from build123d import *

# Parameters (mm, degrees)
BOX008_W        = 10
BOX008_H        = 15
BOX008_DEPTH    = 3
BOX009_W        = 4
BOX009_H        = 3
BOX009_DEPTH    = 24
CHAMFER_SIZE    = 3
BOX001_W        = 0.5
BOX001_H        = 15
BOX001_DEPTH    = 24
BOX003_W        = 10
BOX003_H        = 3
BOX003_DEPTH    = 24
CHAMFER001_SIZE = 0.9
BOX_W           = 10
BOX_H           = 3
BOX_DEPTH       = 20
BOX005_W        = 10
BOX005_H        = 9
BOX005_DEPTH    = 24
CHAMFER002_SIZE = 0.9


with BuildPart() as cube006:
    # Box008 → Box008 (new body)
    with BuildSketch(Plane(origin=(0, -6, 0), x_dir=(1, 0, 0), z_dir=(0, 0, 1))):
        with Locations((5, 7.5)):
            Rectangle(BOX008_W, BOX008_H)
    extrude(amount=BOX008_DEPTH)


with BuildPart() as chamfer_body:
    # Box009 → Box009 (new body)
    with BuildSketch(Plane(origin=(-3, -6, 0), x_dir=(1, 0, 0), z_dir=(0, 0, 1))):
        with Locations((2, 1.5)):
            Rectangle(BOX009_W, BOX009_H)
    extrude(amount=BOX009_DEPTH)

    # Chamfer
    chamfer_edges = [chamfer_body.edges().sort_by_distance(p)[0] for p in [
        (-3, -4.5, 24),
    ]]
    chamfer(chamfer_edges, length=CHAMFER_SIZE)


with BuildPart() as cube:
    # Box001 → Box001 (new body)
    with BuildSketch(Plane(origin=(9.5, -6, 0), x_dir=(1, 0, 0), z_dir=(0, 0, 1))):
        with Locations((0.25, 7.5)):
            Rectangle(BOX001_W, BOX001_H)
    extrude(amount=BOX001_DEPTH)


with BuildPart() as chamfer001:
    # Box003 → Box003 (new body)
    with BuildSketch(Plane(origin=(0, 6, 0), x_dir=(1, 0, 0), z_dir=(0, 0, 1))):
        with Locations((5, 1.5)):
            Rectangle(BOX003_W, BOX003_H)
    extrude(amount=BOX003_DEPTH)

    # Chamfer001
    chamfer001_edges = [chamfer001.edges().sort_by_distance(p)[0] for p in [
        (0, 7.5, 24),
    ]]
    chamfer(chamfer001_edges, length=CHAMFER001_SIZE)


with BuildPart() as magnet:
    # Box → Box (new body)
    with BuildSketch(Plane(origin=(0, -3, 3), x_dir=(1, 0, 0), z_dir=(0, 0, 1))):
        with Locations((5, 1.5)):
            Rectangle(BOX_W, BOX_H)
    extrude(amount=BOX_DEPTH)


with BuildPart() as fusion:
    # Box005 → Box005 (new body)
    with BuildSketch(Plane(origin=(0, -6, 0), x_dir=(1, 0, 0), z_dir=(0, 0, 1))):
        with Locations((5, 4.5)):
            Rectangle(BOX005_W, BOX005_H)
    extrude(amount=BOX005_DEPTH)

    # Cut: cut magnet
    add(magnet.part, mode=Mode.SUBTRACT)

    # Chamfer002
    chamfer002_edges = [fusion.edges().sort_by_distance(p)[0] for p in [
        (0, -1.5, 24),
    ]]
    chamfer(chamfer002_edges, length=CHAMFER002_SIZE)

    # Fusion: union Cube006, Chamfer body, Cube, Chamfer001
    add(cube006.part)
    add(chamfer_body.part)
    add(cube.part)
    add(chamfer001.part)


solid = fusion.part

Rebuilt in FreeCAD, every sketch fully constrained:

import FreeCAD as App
import Part
import Sketcher
from FreeCAD import Vector
Q = App.Units.Quantity


def edges_at(feature, points):
    """Names of the edges that pass closest to the given points."""
    edges = feature.Shape.Edges
    near = lambda p: min(range(len(edges)), key=lambda i: edges[i].distToShape(Part.Vertex(*p))[0])
    return sorted({f"Edge{near(p) + 1}" for p in points})


def add_polygon(sketch, points):
    """Adds a closed chain of lines whose ends are joined by coincident constraints."""
    first, n = sketch.GeometryCount, len(points)
    for a, b in zip(points, points[1:] + points[:1]):
        sketch.addGeometry(Part.LineSegment(App.Vector(*a, 0), App.Vector(*b, 0)), False)
    for i in range(n):
        sketch.addConstraint(Sketcher.Constraint("Coincident", first + i, 2, first + (i + 1) % n, 1))

doc = App.newDocument("Part")
body = doc.addObject("PartDesign::Body", "Body")

# Sketch on XY plane
sketch1 = doc.addObject("Sketcher::SketchObject", "Sketch")
body.addObject(sketch1)
sketch1.AttachmentSupport = (doc.XY_Plane, [""])
sketch1.MapMode = "FlatFace"
add_polygon(sketch1, [(0, 9), (0, -6), (10, -6), (10, 9)])  # lines 0-3
sketch1.addConstraint([
    Sketcher.Constraint("Vertical", 0),
    Sketcher.Constraint("Horizontal", 1),
    Sketcher.Constraint("Vertical", 2),
    Sketcher.Constraint("Horizontal", 3),
    Sketcher.Constraint("PointOnObject", 0, 2, -2),
    Sketcher.Constraint("DistanceX", 1, 1, 1, 2, Q("10 mm")),
    Sketcher.Constraint("DistanceY", 0, 2, 0, 1, Q("15 mm")),
    Sketcher.Constraint("DistanceY", 0, 2, -1, 1, Q("6 mm")),
])
pad1 = doc.addObject("PartDesign::Pad", "Pad")
body.addObject(pad1)
pad1.Profile = sketch1
pad1.Length = 3
body2 = doc.addObject("PartDesign::Body", "Body001")

# Sketch on XY plane
sketch2 = doc.addObject("Sketcher::SketchObject", "Sketch001")
body2.addObject(sketch2)
sketch2.AttachmentSupport = (doc.getObject("XY_Plane001"), [""])
sketch2.MapMode = "FlatFace"
add_polygon(sketch2, [(-3, -3), (-3, -6), (1, -6), (1, -3)])  # lines 0-3
sketch2.addConstraint([
    Sketcher.Constraint("Vertical", 0),
    Sketcher.Constraint("Horizontal", 1),
    Sketcher.Constraint("Vertical", 2),
    Sketcher.Constraint("Horizontal", 3),
    Sketcher.Constraint("DistanceX", 1, 1, 1, 2, Q("4 mm")),
    Sketcher.Constraint("DistanceY", 0, 2, 0, 1, Q("3 mm")),
    Sketcher.Constraint("DistanceX", 0, 2, -1, 1, Q("3 mm")),
    Sketcher.Constraint("DistanceY", 0, 2, -1, 1, Q("6 mm")),
])
pad2 = doc.addObject("PartDesign::Pad", "Pad001")
body2.addObject(pad2)
pad2.Profile = sketch2
pad2.Length = 24
doc.recompute()

chamfer = doc.addObject("PartDesign::Chamfer", "Chamfer")
body2.addObject(chamfer)
chamfer.Base = (pad2, edges_at(pad2, [(-3, -4.5, 24)]))
chamfer.Size = 3
body3 = doc.addObject("PartDesign::Body", "Body002")

# Sketch on XY plane
sketch3 = doc.addObject("Sketcher::SketchObject", "Sketch002")
body3.addObject(sketch3)
sketch3.AttachmentSupport = (doc.getObject("XY_Plane002"), [""])
sketch3.MapMode = "FlatFace"
add_polygon(sketch3, [(9.5, 9), (9.5, -6), (10, -6), (10, 9)])  # lines 0-3
sketch3.addConstraint([
    Sketcher.Constraint("Vertical", 0),
    Sketcher.Constraint("Horizontal", 1),
    Sketcher.Constraint("Vertical", 2),
    Sketcher.Constraint("Horizontal", 3),
    Sketcher.Constraint("DistanceY", 0, 2, 0, 1, Q("15 mm")),
    Sketcher.Constraint("DistanceX", 1, 1, 1, 2, Q("0.5 mm")),
    Sketcher.Constraint("DistanceY", 0, 2, -1, 1, Q("6 mm")),
    Sketcher.Constraint("DistanceX", -1, 1, 1, 2, Q("10 mm")),
])
pad3 = doc.addObject("PartDesign::Pad", "Pad002")
body3.addObject(pad3)
pad3.Profile = sketch3
pad3.Length = 24
body4 = doc.addObject("PartDesign::Body", "Body003")

# Sketch on XY plane
sketch4 = doc.addObject("Sketcher::SketchObject", "Sketch003")
body4.addObject(sketch4)
sketch4.AttachmentSupport = (doc.getObject("XY_Plane003"), [""])
sketch4.MapMode = "FlatFace"
add_polygon(sketch4, [(0, 9), (0, 6), (10, 6), (10, 9)])  # lines 0-3
sketch4.addConstraint([
    Sketcher.Constraint("Vertical", 0),
    Sketcher.Constraint("Horizontal", 1),
    Sketcher.Constraint("Vertical", 2),
    Sketcher.Constraint("Horizontal", 3),
    Sketcher.Constraint("PointOnObject", 0, 2, -2),
    Sketcher.Constraint("DistanceX", 1, 1, 1, 2, Q("10 mm")),
    Sketcher.Constraint("DistanceY", 0, 2, 0, 1, Q("3 mm")),
    Sketcher.Constraint("DistanceY", -1, 1, 0, 2, Q("6 mm")),
])
pad4 = doc.addObject("PartDesign::Pad", "Pad003")
body4.addObject(pad4)
pad4.Profile = sketch4
pad4.Length = 24
doc.recompute()

chamfer2 = doc.addObject("PartDesign::Chamfer", "Chamfer001")
body4.addObject(chamfer2)
chamfer2.Base = (pad4, edges_at(pad4, [(0, 7.5, 24)]))
chamfer2.Size = 0.9
body5 = doc.addObject("PartDesign::Body", "Body004")

# Sketch on XY plane
sketch5 = doc.addObject("Sketcher::SketchObject", "Sketch004")
body5.addObject(sketch5)
sketch5.AttachmentSupport = (doc.getObject("XY_Plane004"), [""])
sketch5.MapMode = "FlatFace"
sketch5.AttachmentOffset = App.Placement(Vector(0, 0, 3), App.Rotation())
add_polygon(sketch5, [(0, 0), (0, -3), (10, -3), (10, 0)])  # lines 0-3
sketch5.addConstraint([
    Sketcher.Constraint("Vertical", 0),
    Sketcher.Constraint("Horizontal", 1),
    Sketcher.Constraint("Vertical", 2),
    Sketcher.Constraint("Horizontal", 3),
    Sketcher.Constraint("Coincident", 3, 2, -1, 1),
    Sketcher.Constraint("DistanceX", 1, 1, 1, 2, Q("10 mm")),
    Sketcher.Constraint("DistanceY", 0, 2, 0, 1, Q("3 mm")),
])
pad5 = doc.addObject("PartDesign::Pad", "Pad004")
body5.addObject(pad5)
pad5.Profile = sketch5
pad5.Length = 20
body6 = doc.addObject("PartDesign::Body", "Body005")

# Sketch on XY plane
sketch6 = doc.addObject("Sketcher::SketchObject", "Sketch005")
body6.addObject(sketch6)
sketch6.AttachmentSupport = (doc.getObject("XY_Plane005"), [""])
sketch6.MapMode = "FlatFace"
add_polygon(sketch6, [(0, 3), (0, -6), (10, -6), (10, 3)])  # lines 0-3
sketch6.addConstraint([
    Sketcher.Constraint("Vertical", 0),
    Sketcher.Constraint("Horizontal", 1),
    Sketcher.Constraint("Vertical", 2),
    Sketcher.Constraint("Horizontal", 3),
    Sketcher.Constraint("PointOnObject", 0, 2, -2),
    Sketcher.Constraint("DistanceX", 1, 1, 1, 2, Q("10 mm")),
    Sketcher.Constraint("DistanceY", 0, 2, 0, 1, Q("9 mm")),
    Sketcher.Constraint("DistanceY", 0, 2, -1, 1, Q("6 mm")),
])
pad6 = doc.addObject("PartDesign::Pad", "Pad005")
body6.addObject(pad6)
pad6.Profile = sketch6
pad6.Length = 24
doc.recompute()

boolean = doc.addObject("PartDesign::Boolean", "Boolean")
body6.addObject(boolean)
boolean.Type = "Cut"
boolean.addObjects([body5])
doc.recompute()

chamfer3 = doc.addObject("PartDesign::Chamfer", "Chamfer002")
body6.addObject(chamfer3)
chamfer3.Base = (boolean, edges_at(boolean, [(0, -1.5, 24)]))
chamfer3.Size = 0.9
doc.recompute()

boolean2 = doc.addObject("PartDesign::Boolean", "Boolean001")
body6.addObject(boolean2)
boolean2.Type = "Fuse"
boolean2.addObjects([body])
doc.recompute()

boolean3 = doc.addObject("PartDesign::Boolean", "Boolean002")
body6.addObject(boolean3)
boolean3.Type = "Fuse"
boolean3.addObjects([body2])
doc.recompute()

boolean4 = doc.addObject("PartDesign::Boolean", "Boolean003")
body6.addObject(boolean4)
boolean4.Type = "Fuse"
boolean4.addObjects([body3])
doc.recompute()

boolean5 = doc.addObject("PartDesign::Boolean", "Boolean004")
body6.addObject(boolean5)
boolean5.Type = "Fuse"
boolean5.addObjects([body4])

doc.recompute()
